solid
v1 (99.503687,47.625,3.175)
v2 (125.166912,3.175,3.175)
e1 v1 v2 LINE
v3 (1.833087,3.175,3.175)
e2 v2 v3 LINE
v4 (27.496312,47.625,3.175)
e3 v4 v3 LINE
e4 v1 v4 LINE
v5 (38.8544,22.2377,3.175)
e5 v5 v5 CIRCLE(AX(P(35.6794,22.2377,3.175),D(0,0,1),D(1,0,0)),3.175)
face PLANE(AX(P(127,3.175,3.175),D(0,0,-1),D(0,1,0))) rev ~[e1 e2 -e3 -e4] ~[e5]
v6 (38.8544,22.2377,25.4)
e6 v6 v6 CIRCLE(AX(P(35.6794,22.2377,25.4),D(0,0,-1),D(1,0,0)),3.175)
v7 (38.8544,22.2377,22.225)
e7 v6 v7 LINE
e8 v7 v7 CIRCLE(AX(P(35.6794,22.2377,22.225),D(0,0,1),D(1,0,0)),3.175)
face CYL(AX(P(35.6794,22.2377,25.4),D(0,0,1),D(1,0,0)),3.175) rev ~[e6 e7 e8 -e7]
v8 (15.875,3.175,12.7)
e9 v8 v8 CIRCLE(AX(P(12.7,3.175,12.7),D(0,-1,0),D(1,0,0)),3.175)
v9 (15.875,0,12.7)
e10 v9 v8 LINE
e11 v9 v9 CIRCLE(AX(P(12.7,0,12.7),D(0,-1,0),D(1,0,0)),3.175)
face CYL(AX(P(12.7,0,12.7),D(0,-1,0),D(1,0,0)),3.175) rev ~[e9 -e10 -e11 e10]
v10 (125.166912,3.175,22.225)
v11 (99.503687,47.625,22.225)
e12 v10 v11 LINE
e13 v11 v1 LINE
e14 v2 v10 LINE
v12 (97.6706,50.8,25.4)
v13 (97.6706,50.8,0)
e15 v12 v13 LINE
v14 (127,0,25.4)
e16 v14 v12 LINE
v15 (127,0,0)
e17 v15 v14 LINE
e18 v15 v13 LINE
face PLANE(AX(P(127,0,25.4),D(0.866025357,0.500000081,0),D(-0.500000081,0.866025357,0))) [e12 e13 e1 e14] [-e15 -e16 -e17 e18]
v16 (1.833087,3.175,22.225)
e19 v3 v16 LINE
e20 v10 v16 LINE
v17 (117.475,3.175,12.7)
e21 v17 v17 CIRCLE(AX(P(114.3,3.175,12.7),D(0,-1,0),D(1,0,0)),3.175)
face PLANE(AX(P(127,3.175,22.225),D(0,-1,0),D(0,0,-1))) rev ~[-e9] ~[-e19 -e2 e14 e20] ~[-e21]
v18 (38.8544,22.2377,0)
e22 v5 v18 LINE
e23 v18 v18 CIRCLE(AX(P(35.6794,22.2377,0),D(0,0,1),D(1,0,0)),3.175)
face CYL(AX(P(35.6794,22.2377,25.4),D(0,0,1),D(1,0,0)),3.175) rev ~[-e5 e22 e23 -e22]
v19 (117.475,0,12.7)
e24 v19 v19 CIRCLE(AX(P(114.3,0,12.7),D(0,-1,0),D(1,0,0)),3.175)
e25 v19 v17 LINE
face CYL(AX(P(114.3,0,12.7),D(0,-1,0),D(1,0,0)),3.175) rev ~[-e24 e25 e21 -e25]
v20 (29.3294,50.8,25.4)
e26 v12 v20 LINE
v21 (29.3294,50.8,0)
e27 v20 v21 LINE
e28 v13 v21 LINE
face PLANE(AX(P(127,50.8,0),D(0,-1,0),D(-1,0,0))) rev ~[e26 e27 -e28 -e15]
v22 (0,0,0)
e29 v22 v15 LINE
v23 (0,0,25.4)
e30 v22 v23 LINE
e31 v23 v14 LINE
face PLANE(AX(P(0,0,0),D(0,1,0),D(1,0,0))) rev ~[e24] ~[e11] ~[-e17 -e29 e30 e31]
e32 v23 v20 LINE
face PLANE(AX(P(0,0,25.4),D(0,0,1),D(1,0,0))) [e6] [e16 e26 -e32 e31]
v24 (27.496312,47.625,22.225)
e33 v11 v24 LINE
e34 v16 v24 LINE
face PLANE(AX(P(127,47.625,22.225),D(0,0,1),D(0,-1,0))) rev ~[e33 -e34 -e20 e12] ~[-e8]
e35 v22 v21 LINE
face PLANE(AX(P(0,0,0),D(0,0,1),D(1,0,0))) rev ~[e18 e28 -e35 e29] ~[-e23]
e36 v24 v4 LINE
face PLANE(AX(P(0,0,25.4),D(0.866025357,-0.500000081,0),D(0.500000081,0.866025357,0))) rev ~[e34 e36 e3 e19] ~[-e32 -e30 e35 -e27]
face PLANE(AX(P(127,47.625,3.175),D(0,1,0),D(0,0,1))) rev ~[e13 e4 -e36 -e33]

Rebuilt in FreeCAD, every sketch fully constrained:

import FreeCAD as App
import Part
import Sketcher
Q = App.Units.Quantity


def add_polygon(sketch, points):
    """Adds a closed chain of lines whose ends are joined by coincident constraints."""
    first, n = sketch.GeometryCount, len(points)
    for a, b in zip(points, points[1:] + points[:1]):
        sketch.addGeometry(Part.LineSegment(App.Vector(*a, 0), App.Vector(*b, 0)), False)
    for i in range(n):
        sketch.addConstraint(Sketcher.Constraint("Coincident", first + i, 2, first + (i + 1) % n, 1))

doc = App.newDocument("Part")
params = doc.addObject("Spreadsheet::Sheet", "Params")
for row, (alias, value) in enumerate([
    ("sketch1_width", "5 in"),
    ("sketch1_height", "2 in"),
    ("pad1_length", "1 in"),
    ("sketch2_width", "1.75 in"),
    ("sketch2_height", "0.75 in"),
    ("pocket1_length", "99 in"),
    ("sketch3_height", "2 in"),
    ("pocket2_length", "99 in"),
    ("sketch4_diameter", "0.25 in"),
    ("pocket3_length", "99 in"),
    ("sketch5_diameter", "0.25 in"),
    ("pocket4_length", "99 in"),
], start=1):
    params.set(f"A{row}", alias)
    params.set(f"B{row}", "=" + value)
    params.setAlias(f"B{row}", alias)

body = doc.addObject("PartDesign::Body", "Body")

# Sketch on XY plane
sketch1 = body.newObject("Sketcher::SketchObject", "Sketch")
sketch1.AttachmentSupport = (doc.getObject("XY_Plane"), [""])
sketch1.MapMode = "FlatFace"
add_polygon(sketch1, [(0, 51), (0, 0), (127, 0), (127, 51)])  # lines 0-3
sketch1.addConstraint([
    Sketcher.Constraint("Vertical", 0),
    Sketcher.Constraint("Horizontal", 1),
    Sketcher.Constraint("Vertical", 2),
    Sketcher.Constraint("Horizontal", 3),
    Sketcher.Constraint("Coincident", 0, 2, -1, 1),
    Sketcher.Constraint("DistanceX", 1, 1, 1, 2, Q("5 in")),
    Sketcher.Constraint("DistanceY", 0, 2, 0, 1, Q("2 in")),
])
sketch1.setExpression("Constraints[9]", "Params.sketch1_width")
sketch1.setExpression("Constraints[10]", "Params.sketch1_height")
pad1 = body.newObject("PartDesign::Pad", "Pad")
pad1.Profile = sketch1
pad1.setExpression("Length", "Params.pad1_length")

# Sketch on YZ plane
sketch2 = body.newObject("Sketcher::SketchObject", "Sketch001")
sketch2.AttachmentSupport = (doc.getObject("YZ_Plane"), [""])
sketch2.MapMode = "FlatFace"
sketch2.AttachmentOffset = App.Placement(App.Vector(0, 0, 5 * 25.4), App.Rotation())
add_polygon(sketch2, [(48, 22), (3, 22), (3, 3), (48, 3)])  # lines 0-3
sketch2.addConstraint([
    Sketcher.Constraint("Horizontal", 0),
    Sketcher.Constraint("Vertical", 1),
    Sketcher.Constraint("Horizontal", 2),
    Sketcher.Constraint("Vertical", 3),
    Sketcher.Constraint("DistanceX", 0, 2, 0, 1, Q("1.75 in")),
    Sketcher.Constraint("DistanceY", 1, 2, 1, 1, Q("0.75 in")),
    Sketcher.Constraint("DistanceX", -1, 1, 0, 2, Q("0.125 in")),
    Sketcher.Constraint("DistanceY", -1, 1, 0, 2, Q("0.875 in")),
])
sketch2.setExpression("Constraints[8]", "Params.sketch2_width")
sketch2.setExpression("Constraints[9]", "Params.sketch2_height")
pocket1 = body.newObject("PartDesign::Pocket", "Pocket")
pocket1.Profile = sketch2
pocket1.setExpression("Length", "Params.pocket1_length")

# Sketch on XY plane
sketch3 = body.newObject("Sketcher::SketchObject", "Sketch002")
sketch3.AttachmentSupport = (doc.getObject("XY_Plane"), [""])
sketch3.MapMode = "FlatFace"
sketch3.AttachmentOffset = App.Placement(App.Vector(0, 0, 1 * 25.4), App.Rotation())
add_polygon(sketch3, [(98, 51), (127, 0), (127, 51)])  # lines 0-2
add_polygon(sketch3, [(0, 0), (29, 51), (0, 51)])  # lines 3-5
sketch3.addConstraint([
    Sketcher.Constraint("Vertical", 1),
    Sketcher.Constraint("Horizontal", 2),
    Sketcher.Constraint("Horizontal", 4),
    Sketcher.Constraint("Vertical", 5),
    Sketcher.Constraint("Coincident", 5, 2, -1, 1),
    Sketcher.Constraint("PointOnObject", 0, 2, -1),
    Sketcher.Constraint("Horizontal", 2, 2, 3, 2),
    Sketcher.Constraint("Equal", 2, 4),
    Sketcher.Constraint("Angle", 0, Q("-60 deg")),
    Sketcher.Constraint("DistanceY", 1, 1, 1, 2, Q("2 in")),
    Sketcher.Constraint("DistanceX", -1, 1, 0, 2, Q("5 in")),
])
sketch3.setExpression("Constraints[15]", "Params.sketch3_height")
pocket2 = body.newObject("PartDesign::Pocket", "Pocket001")
pocket2.Profile = sketch3
pocket2.setExpression("Length", "Params.pocket2_length")

# Sketch on XZ plane
sketch4 = body.newObject("Sketcher::SketchObject", "Sketch003")
sketch4.AttachmentSupport = (doc.getObject("XZ_Plane"), [""])
sketch4.MapMode = "FlatFace"
sketch4.addGeometry([
    Part.Circle(App.Vector(12.7, 12.7, 0), App.Vector(0, 0, 1), 3.2),
    Part.Circle(App.Vector(114.3, 12.7, 0), App.Vector(0, 0, 1), 3.2),
], False)
sketch4.addConstraint([
    Sketcher.Constraint("Equal", 0, 1),
    Sketcher.Constraint("Horizontal", 0, 3, 1, 3),
    Sketcher.Constraint("Diameter", 0, Q("0.25 in")),
    Sketcher.Constraint("DistanceX", 0, 3, 1, 3, Q("4 in")),
    Sketcher.Constraint("DistanceX", -1, 1, 0, 3, Q("0.5 in")),
    Sketcher.Constraint("DistanceY", -1, 1, 0, 3, Q("0.5 in")),
])
sketch4.setExpression("Constraints[2]", "Params.sketch4_diameter")
pocket3 = body.newObject("PartDesign::Pocket", "Pocket002")
pocket3.Profile = sketch4
pocket3.setExpression("Length", "Params.pocket3_length")

# Sketch on XY plane
sketch5 = body.newObject("Sketcher::SketchObject", "Sketch004")
sketch5.AttachmentSupport = (doc.getObject("XY_Plane"), [""])
sketch5.MapMode = "FlatFace"
sketch5.AttachmentOffset = App.Placement(App.Vector(0, 0, 1 * 25.4), App.Rotation())
sketch5.addGeometry(Part.Circle(App.Vector(35.7, 22.2, 0), App.Vector(0, 0, 1), 3.2), False)
sketch5.addConstraint([
    Sketcher.Constraint("Diameter", 0, Q("0.25 in")),
    Sketcher.Constraint("DistanceY", -1, 1, 0, 3, Q("0.8755 in")),
    Sketcher.Constraint("DistanceX", -1, 1, 0, 3, Q("1.4047 in")),
])
sketch5.setExpression("Constraints[0]", "Params.sketch5_diameter")
pocket4 = body.newObject("PartDesign::Pocket", "Pocket003")
pocket4.Profile = sketch5
pocket4.setExpression("Length", "Params.pocket4_length")

doc.recompute()
